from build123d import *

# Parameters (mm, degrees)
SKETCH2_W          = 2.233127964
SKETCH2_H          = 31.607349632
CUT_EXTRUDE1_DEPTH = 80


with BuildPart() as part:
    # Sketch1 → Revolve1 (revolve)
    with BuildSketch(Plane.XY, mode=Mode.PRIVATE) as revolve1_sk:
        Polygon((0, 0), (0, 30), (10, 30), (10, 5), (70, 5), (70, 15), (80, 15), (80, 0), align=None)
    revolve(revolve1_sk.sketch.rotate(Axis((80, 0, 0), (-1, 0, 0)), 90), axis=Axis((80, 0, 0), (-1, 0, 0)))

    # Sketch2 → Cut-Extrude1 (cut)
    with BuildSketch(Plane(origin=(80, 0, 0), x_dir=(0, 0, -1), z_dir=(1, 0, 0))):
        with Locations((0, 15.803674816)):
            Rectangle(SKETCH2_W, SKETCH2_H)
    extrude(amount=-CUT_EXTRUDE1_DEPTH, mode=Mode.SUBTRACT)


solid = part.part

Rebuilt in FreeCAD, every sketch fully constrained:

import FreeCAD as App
import Part
import Sketcher

V = App.Vector
Q = App.Units.Quantity


def add_polygon(sketch, points):
    """Adds a closed chain of lines whose ends are joined by coincident constraints."""
    first, n = sketch.GeometryCount, len(points)
    for a, b in zip(points, points[1:] + points[:1]):
        sketch.addGeometry(Part.LineSegment(App.Vector(*a, 0), App.Vector(*b, 0)), False)
    for i in range(n):
        sketch.addConstraint(Sketcher.Constraint("Coincident", first + i, 2, first + (i + 1) % n, 1))

doc = App.newDocument("Part")
body = doc.addObject("PartDesign::Body", "Body")

# Sketch on XY plane
sketch1 = body.newObject("Sketcher::SketchObject", "Sketch")
sketch1.AttachmentSupport = (doc.getObject("XY_Plane"), [""])
sketch1.MapMode = "FlatFace"
add_polygon(sketch1, [(0, 30), (0, 0), (80, 0), (80, 15), (70, 15), (70, 5), (10, 5), (10, 30)])  # lines 0-7
sketch1.addConstraint([
    Sketcher.Constraint("Vertical", 0),
    Sketcher.Constraint("Horizontal", 1),
    Sketcher.Constraint("Vertical", 2),
    Sketcher.Constraint("Horizontal", 3),
    Sketcher.Constraint("Vertical", 4),
    Sketcher.Constraint("Horizontal", 5),
    Sketcher.Constraint("Vertical", 6),
    Sketcher.Constraint("Horizontal", 7),
    Sketcher.Constraint("Coincident", 0, 2, -1, 1),
    Sketcher.Constraint("Equal", 3, 7),
    Sketcher.Constraint("Equal", 7, 4),
    Sketcher.Constraint("DistanceX", 1, 1, 1, 2, Q("80 mm")),
    Sketcher.Constraint("DistanceX", 3, 2, 3, 1, Q("10 mm")),
    Sketcher.Constraint("DistanceY", 0, 2, 0, 1, Q("30 mm")),
    Sketcher.Constraint("DistanceY", 2, 1, 2, 2, Q("15 mm")),
])
revolution = body.newObject("PartDesign::Revolution", "Revolution")
revolution.Profile = sketch1
revolution.ReferenceAxis = (sketch1, ["H_Axis"])
revolution.Angle = 360

# Sketch on YZ plane
sketch2 = body.newObject("Sketcher::SketchObject", "Sketch001")
sketch2.AttachmentSupport = (doc.getObject("YZ_Plane"), [""])
sketch2.MapMode = "FlatFace"
sketch2.AttachmentOffset = App.Placement(V(0, 0, 80), App.Rotation())
add_polygon(sketch2, [(31.6, 1.1), (0, 1.1), (0, -1.1), (31.6, -1.1)])  # lines 0-3
sketch2.addConstraint([
    Sketcher.Constraint("Horizontal", 0),
    Sketcher.Constraint("Vertical", 1),
    Sketcher.Constraint("Horizontal", 2),
    Sketcher.Constraint("Vertical", 3),
    Sketcher.Constraint("Symmetric", 0, 2, 1, 2, -1, 1),
    Sketcher.Constraint("DistanceX", 0, 2, 0, 1, Q("31.60735 mm")),
    Sketcher.Constraint("DistanceY", 1, 2, 1, 1, Q("2.233128 mm")),
])
pocket1 = body.newObject("PartDesign::Pocket", "Pocket")
pocket1.Profile = sketch2
pocket1.Length = 80

doc.recompute()
